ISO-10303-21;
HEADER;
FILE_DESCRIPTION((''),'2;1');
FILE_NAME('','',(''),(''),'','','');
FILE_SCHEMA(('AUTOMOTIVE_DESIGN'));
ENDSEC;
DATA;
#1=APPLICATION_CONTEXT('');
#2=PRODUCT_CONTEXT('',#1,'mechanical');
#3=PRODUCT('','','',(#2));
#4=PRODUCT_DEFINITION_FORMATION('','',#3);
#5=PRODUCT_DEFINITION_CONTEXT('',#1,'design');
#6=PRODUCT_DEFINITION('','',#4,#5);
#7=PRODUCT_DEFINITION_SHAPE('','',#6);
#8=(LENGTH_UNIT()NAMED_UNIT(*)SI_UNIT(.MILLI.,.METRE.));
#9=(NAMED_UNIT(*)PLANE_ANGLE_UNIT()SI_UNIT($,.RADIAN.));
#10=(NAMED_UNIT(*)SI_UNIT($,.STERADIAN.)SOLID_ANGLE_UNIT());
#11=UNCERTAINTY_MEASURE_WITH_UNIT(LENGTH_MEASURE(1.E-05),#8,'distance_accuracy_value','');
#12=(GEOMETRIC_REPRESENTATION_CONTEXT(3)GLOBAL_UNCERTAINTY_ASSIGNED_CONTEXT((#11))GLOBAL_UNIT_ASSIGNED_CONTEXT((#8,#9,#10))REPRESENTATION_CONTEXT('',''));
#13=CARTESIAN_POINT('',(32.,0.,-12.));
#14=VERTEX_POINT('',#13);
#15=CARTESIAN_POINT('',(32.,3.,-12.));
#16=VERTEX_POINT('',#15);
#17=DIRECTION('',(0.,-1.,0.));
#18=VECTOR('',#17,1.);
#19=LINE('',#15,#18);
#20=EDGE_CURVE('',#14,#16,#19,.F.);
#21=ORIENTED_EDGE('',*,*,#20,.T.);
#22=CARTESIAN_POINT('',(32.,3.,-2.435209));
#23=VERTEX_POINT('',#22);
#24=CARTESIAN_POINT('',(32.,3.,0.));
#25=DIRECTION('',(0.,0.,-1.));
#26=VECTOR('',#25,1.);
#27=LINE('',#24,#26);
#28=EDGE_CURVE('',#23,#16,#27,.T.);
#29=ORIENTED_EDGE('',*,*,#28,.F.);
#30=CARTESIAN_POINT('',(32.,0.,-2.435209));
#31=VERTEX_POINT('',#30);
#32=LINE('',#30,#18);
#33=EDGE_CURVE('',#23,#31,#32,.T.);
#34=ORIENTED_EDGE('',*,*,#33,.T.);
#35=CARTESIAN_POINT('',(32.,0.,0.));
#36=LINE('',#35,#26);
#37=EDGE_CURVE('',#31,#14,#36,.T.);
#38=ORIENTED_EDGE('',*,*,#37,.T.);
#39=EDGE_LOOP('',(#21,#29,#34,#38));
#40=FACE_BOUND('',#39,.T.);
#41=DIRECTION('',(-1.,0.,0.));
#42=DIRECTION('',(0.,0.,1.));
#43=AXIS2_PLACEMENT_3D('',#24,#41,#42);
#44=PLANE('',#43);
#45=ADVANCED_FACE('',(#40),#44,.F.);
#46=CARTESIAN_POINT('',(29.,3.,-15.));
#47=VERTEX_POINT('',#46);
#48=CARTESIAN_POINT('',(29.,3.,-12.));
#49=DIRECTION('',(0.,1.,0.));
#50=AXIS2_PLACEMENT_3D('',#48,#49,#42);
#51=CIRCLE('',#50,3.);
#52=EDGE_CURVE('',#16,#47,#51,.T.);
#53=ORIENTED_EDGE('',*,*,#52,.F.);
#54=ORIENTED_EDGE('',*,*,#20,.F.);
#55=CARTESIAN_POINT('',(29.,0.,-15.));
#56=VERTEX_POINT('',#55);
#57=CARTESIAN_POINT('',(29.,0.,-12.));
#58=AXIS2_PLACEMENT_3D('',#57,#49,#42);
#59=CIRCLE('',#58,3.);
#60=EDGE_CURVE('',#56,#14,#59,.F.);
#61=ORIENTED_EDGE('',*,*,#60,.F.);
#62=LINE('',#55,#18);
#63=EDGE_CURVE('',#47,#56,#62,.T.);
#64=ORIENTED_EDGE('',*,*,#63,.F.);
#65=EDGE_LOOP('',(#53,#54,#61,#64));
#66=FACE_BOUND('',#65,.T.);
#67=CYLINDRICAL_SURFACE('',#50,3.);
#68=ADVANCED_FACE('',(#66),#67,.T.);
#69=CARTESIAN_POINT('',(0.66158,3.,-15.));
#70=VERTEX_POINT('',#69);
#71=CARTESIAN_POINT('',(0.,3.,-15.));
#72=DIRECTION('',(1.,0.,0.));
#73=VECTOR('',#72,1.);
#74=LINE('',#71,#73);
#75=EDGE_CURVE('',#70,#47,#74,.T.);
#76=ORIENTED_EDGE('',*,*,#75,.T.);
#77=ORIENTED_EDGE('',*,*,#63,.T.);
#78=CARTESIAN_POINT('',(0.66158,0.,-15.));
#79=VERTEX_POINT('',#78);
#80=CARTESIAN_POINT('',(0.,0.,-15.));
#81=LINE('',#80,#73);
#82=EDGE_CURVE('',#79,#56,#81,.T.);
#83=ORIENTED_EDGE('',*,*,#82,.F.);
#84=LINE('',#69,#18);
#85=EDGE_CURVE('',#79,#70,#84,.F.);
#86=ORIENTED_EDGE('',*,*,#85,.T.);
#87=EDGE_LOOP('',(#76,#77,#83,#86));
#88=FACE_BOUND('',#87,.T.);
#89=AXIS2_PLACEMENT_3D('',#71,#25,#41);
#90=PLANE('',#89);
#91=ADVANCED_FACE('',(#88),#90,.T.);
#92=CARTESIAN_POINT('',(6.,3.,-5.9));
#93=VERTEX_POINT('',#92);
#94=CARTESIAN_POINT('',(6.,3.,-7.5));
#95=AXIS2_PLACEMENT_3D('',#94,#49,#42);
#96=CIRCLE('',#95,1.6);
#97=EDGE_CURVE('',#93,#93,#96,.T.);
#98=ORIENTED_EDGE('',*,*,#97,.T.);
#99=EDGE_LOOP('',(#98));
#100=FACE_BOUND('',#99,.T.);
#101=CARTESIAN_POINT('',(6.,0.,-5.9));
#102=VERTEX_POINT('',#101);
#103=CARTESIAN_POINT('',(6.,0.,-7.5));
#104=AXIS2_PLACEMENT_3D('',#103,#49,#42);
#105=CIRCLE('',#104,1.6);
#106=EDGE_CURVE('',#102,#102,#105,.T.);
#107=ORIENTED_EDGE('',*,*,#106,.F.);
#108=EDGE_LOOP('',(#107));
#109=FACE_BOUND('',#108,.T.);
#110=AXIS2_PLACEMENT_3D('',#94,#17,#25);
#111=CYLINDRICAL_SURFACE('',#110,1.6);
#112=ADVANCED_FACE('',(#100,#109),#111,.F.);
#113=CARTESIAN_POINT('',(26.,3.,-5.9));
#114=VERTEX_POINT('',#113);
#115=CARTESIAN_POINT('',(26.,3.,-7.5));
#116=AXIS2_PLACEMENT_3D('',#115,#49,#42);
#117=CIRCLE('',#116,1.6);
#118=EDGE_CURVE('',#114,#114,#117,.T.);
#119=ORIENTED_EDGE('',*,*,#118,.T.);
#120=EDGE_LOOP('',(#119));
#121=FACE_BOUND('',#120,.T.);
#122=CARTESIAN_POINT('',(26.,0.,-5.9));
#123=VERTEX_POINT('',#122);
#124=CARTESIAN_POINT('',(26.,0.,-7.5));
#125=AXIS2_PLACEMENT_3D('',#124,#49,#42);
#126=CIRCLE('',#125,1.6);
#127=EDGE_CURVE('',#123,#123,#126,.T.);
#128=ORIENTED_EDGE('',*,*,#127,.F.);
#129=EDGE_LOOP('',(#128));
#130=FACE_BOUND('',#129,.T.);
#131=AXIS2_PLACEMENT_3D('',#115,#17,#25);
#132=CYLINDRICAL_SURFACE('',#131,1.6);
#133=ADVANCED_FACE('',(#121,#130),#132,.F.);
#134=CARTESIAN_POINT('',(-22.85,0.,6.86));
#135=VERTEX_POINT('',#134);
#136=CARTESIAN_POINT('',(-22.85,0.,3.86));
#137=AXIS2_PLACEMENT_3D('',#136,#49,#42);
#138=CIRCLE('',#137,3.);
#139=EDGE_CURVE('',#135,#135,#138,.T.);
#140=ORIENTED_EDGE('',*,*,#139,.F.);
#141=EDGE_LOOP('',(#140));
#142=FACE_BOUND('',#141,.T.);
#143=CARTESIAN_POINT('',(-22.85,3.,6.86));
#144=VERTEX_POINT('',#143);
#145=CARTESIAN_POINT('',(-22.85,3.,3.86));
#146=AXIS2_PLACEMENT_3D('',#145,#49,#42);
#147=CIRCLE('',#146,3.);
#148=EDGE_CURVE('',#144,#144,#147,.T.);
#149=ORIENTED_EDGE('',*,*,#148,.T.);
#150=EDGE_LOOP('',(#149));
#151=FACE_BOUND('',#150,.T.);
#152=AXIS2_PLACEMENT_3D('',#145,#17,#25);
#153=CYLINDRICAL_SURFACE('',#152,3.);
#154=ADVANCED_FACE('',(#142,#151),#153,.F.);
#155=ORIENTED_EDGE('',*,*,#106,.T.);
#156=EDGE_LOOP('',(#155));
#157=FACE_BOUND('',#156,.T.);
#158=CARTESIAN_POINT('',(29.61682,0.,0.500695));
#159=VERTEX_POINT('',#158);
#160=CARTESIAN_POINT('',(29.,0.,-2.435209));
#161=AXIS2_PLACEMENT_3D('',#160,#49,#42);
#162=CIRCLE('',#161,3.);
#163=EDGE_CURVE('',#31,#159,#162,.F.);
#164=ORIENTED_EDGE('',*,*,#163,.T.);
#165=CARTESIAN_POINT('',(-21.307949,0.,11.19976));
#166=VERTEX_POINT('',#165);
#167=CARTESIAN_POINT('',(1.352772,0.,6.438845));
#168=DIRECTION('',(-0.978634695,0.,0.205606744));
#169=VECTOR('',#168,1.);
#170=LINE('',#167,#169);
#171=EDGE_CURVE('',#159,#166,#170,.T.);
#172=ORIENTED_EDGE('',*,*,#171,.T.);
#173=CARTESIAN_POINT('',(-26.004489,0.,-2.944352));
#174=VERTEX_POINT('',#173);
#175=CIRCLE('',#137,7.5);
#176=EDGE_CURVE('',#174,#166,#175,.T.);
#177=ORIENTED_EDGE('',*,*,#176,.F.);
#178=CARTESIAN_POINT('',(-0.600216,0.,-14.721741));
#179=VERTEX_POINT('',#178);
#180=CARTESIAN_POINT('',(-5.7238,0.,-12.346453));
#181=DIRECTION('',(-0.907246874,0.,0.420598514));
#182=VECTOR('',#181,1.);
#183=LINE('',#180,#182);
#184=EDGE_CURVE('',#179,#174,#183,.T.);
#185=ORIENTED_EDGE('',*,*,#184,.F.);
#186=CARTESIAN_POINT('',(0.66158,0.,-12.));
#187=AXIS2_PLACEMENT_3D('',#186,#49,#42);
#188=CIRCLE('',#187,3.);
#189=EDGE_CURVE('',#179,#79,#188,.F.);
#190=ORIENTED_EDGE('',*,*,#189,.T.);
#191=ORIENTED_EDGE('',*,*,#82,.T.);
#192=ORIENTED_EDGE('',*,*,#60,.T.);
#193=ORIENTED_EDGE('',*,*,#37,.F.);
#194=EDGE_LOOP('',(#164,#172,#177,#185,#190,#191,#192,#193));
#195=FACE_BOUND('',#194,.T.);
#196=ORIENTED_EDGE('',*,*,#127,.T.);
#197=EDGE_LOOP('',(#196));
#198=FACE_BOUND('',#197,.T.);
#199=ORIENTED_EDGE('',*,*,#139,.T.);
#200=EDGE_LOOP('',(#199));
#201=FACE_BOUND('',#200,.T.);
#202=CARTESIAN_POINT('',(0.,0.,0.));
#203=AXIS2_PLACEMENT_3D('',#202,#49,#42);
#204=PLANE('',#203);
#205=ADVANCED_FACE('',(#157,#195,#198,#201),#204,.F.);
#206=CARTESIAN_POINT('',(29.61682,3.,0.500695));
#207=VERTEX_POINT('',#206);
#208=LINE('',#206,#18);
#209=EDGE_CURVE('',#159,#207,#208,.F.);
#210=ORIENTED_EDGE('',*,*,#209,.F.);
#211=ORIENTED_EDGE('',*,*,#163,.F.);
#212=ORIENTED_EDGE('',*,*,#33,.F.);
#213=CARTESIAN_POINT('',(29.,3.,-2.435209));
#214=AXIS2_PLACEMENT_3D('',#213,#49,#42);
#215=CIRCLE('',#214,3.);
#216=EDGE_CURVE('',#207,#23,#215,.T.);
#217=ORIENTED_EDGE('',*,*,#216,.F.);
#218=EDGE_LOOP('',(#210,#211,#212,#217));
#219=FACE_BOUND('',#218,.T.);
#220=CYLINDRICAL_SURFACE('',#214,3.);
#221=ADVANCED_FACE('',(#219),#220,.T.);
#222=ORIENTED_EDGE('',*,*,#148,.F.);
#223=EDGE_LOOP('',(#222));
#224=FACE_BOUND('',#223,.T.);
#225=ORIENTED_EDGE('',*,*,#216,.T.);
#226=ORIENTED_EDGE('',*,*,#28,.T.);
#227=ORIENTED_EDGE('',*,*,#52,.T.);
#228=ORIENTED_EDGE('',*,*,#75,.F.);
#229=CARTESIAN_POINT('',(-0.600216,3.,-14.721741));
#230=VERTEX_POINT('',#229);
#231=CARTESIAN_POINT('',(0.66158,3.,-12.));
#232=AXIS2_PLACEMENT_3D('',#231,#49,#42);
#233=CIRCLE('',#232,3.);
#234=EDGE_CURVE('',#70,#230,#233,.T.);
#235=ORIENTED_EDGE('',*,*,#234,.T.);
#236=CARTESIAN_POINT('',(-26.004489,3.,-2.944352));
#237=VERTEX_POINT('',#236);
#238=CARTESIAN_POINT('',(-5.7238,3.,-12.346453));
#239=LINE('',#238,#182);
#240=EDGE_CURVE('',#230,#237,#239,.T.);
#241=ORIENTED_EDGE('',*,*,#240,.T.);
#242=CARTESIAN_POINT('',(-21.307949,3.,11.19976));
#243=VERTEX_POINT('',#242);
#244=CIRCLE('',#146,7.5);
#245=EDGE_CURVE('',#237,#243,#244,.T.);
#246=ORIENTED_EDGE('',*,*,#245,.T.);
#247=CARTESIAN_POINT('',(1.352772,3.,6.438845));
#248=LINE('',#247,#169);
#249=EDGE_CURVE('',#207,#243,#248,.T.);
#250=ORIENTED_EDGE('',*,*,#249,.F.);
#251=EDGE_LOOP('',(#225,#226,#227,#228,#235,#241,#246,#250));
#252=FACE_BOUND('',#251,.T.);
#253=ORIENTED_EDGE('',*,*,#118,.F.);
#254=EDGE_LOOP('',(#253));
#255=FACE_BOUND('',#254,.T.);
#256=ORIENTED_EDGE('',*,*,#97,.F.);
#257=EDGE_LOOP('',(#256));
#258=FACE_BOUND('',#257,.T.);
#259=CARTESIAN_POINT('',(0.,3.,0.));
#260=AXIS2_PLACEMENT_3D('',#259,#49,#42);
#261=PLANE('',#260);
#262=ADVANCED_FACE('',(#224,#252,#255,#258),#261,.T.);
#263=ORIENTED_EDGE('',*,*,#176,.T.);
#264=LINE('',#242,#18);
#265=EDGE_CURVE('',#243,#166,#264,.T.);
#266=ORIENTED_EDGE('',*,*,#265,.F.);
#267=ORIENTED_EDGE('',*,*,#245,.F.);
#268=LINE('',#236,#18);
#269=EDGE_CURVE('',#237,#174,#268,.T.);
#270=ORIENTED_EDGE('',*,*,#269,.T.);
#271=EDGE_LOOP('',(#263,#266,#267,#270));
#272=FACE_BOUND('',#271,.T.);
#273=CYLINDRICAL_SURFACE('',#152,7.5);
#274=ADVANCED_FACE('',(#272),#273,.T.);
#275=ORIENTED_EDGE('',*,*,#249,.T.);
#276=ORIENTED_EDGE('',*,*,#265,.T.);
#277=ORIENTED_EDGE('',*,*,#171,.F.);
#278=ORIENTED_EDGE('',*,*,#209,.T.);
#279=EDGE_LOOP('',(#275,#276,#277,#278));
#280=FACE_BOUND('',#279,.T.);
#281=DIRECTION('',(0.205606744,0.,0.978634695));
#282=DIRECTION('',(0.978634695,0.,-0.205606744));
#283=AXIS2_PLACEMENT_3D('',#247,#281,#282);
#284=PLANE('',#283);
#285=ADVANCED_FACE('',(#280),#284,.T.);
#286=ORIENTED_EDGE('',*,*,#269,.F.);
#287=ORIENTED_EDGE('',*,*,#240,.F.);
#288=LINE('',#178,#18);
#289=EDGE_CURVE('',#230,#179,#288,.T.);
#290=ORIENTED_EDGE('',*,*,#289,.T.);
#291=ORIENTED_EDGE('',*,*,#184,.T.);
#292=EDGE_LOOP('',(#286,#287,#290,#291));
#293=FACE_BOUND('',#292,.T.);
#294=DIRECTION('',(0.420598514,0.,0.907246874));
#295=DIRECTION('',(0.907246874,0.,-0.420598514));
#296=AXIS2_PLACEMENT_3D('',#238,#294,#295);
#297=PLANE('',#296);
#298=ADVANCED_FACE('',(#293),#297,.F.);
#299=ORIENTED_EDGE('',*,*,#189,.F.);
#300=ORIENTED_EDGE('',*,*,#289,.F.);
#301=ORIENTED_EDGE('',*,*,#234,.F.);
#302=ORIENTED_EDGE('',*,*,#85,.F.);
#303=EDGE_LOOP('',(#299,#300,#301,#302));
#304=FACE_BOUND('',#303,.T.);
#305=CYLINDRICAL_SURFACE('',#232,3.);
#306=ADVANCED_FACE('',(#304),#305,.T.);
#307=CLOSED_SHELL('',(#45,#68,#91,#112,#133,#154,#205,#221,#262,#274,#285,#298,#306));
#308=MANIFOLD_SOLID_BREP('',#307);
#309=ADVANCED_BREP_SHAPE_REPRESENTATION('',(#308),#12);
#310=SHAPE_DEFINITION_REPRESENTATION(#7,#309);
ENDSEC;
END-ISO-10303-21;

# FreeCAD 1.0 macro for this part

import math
import FreeCAD as App
import Part
import Sketcher
from FreeCAD import Vector
Q = App.Units.Quantity


def edges_at(feature, points):
    """Names of the edges that pass closest to the given points."""
    edges = feature.Shape.Edges
    near = lambda p: min(range(len(edges)), key=lambda i: edges[i].distToShape(Part.Vertex(*p))[0])
    return sorted({f"Edge{near(p) + 1}" for p in points})

doc = App.newDocument("Part")
body = doc.addObject("PartDesign::Body", "Body")

# Sketch on XZ plane
sketch1 = body.newObject("Sketcher::SketchObject", "Sketch")
sketch1.AttachmentSupport = (doc.getObject("XZ_Plane"), [""])
sketch1.MapMode = "FlatFace"
sketch1.addGeometry([
    Part.ArcOfCircle(Part.Circle(Vector(-22.85, 3.86, 0), Vector(0, 0, 1), 7.5), math.radians(78.13498), math.radians(245.12762)),  # 0
    Part.LineSegment(Vector(-21.307949, 11.19976, 0), Vector(32, 0, 0)),  # 1
    Part.LineSegment(Vector(32, 0, 0), Vector(32, -15, 0)),  # 2
    Part.LineSegment(Vector(32, -15, 0), Vector(0, -15, 0)),  # 3
    Part.LineSegment(Vector(0, -15, 0), Vector(-26.004489, -2.944352, 0)),  # 4
    Part.Circle(Vector(-22.85, 3.86, 0), Vector(0, 0, 1), 3),  # 5
    Part.Circle(Vector(26, -7.5, 0), Vector(0, 0, 1), 1.6),  # 6
    Part.Circle(Vector(6, -7.5, 0), Vector(0, 0, 1), 1.6),  # 7
], False)
sketch1.addConstraint([
    Sketcher.Constraint("Tangent", 0, 1, 1, 1),
    Sketcher.Constraint("Coincident", 1, 2, 2, 1),
    Sketcher.Constraint("Coincident", 2, 2, 3, 1),
    Sketcher.Constraint("Coincident", 3, 2, 4, 1),
    Sketcher.Constraint("Tangent", 4, 2, 0, 2),
    Sketcher.Constraint("Vertical", 2),
    Sketcher.Constraint("Horizontal", 3),
    Sketcher.Constraint("Coincident", 5, 3, 0, 3),
    Sketcher.Constraint("Equal", 6, 7),
    Sketcher.Constraint("PointOnObject", 1, 2, -1),
    Sketcher.Constraint("PointOnObject", 3, 2, -2),
    Sketcher.Constraint("Horizontal", 6, 3, 7, 3),
    Sketcher.Constraint("Diameter", 5, Q("6 mm")),
    Sketcher.Constraint("Diameter", 6, Q("3.2 mm")),
    Sketcher.Constraint("Radius", 0, Q("7.5 mm")),
    Sketcher.Constraint("DistanceX", 3, 2, 3, 1, Q("32 mm")),
    Sketcher.Constraint("DistanceY", 2, 2, 2, 1, Q("15 mm")),
    Sketcher.Constraint("DistanceX", -1, 1, 6, 3, Q("26 mm")),
    Sketcher.Constraint("DistanceX", -1, 1, 7, 3, Q("6 mm")),
    Sketcher.Constraint("DistanceY", 6, 3, -1, 1, Q("7.5 mm")),
    Sketcher.Constraint("DistanceX", 0, 3, -1, 1, Q("22.85 mm")),
    Sketcher.Constraint("DistanceY", -1, 1, 0, 3, Q("3.86 mm")),
])
pad1 = body.newObject("PartDesign::Pad", "Pad")
pad1.Profile = sketch1
pad1.Length = 3
pad1.Reversed = True
doc.recompute()

fillet = body.newObject("PartDesign::Fillet", "Fillet")
fillet.Base = (pad1, edges_at(pad1, [(0, 1.5, -15), (32, 1.5, -15), (32, 1.5, 0)]))
fillet.Radius = 3

doc.recompute()
